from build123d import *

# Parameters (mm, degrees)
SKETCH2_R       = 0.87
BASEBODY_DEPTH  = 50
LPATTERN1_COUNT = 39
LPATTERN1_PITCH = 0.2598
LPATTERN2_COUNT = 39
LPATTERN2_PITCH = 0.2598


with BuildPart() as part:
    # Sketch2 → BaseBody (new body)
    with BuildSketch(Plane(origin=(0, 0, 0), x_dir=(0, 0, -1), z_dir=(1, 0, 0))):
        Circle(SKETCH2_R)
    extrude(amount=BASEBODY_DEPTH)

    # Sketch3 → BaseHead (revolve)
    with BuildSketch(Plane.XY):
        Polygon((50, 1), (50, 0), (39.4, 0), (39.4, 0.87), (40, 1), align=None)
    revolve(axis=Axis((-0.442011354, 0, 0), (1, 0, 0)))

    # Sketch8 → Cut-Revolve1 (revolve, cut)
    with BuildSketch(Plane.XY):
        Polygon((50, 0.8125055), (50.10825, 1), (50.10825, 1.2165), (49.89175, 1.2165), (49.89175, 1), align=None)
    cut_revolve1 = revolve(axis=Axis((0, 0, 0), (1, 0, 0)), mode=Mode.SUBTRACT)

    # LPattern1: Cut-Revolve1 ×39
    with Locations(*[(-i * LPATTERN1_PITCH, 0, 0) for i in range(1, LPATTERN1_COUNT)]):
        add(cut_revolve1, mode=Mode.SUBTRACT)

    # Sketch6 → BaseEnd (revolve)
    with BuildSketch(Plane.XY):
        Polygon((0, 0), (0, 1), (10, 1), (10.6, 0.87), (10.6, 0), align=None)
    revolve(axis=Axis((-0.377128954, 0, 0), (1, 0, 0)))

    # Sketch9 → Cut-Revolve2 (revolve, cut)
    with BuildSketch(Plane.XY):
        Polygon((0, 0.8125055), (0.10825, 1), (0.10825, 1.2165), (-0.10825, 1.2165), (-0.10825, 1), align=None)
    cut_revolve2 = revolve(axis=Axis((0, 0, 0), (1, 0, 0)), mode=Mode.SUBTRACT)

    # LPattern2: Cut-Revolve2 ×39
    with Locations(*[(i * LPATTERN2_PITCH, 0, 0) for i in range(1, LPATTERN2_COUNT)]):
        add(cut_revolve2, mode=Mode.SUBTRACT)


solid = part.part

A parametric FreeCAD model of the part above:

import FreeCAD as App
import Part
import Sketcher
from FreeCAD import Vector
Q = App.Units.Quantity


def add_polygon(sketch, points):
    """Adds a closed chain of lines whose ends are joined by coincident constraints."""
    first, n = sketch.GeometryCount, len(points)
    for a, b in zip(points, points[1:] + points[:1]):
        sketch.addGeometry(Part.LineSegment(App.Vector(*a, 0), App.Vector(*b, 0)), False)
    for i in range(n):
        sketch.addConstraint(Sketcher.Constraint("Coincident", first + i, 2, first + (i + 1) % n, 1))

doc = App.newDocument("Part")
params = doc.addObject("Spreadsheet::Sheet", "Params")
for row, (alias, value) in enumerate([
    ("sketch1_diameter", "1.74 mm"),
    ("pad1_length", "50 mm"),
    ("sketch2_width", "10 mm"),
    ("sketch2_height", "1 mm"),
    ("sketch2_width2", "10.6 mm"),
    ("sketch2_height2", "0.87 mm"),
    ("revolution_angle", "360 deg"),
    ("groove_angle", "360 deg"),
    ("linearpattern_pitch", "0.2598 mm"),
    ("sketch4_width", "10 mm"),
    ("sketch4_height", "1 mm"),
    ("sketch4_width2", "10.6 mm"),
    ("sketch4_height2", "0.87 mm"),
    ("revolution2_angle", "360 deg"),
    ("groove2_angle", "360 deg"),
    ("linearpattern2_pitch", "0.2598 mm"),
], start=1):
    params.set(f"A{row}", alias)
    params.set(f"B{row}", "=" + value)
    params.setAlias(f"B{row}", alias)

body = doc.addObject("PartDesign::Body", "Body")

# Sketch on YZ plane
sketch1 = body.newObject("Sketcher::SketchObject", "Sketch")
sketch1.AttachmentSupport = (doc.getObject("YZ_Plane"), [""])
sketch1.MapMode = "FlatFace"
sketch1.addGeometry(Part.Circle(Vector(0, 0, 0), Vector(0, 0, 1), 0.87), False)
sketch1.addConstraint([
    Sketcher.Constraint("Coincident", 0, 3, -1, 1),
    Sketcher.Constraint("Diameter", 0, 1.74),
])
sketch1.setExpression("Constraints[1]", "Params.sketch1_diameter")
pad1 = body.newObject("PartDesign::Pad", "Pad")
pad1.Profile = sketch1
pad1.setExpression("Length", "Params.pad1_length")

# Sketch on XY plane
sketch2 = body.newObject("Sketcher::SketchObject", "Sketch001")
sketch2.AttachmentSupport = (doc.getObject("XY_Plane"), [""])
sketch2.MapMode = "FlatFace"
add_polygon(sketch2, [(50, 0), (50, 1), (40, 1), (39.4, 0.87), (39.4, 0)])  # lines 0-4
sketch2.addConstraint([
    Sketcher.Constraint("Vertical", 0),
    Sketcher.Constraint("Horizontal", 1),
    Sketcher.Constraint("Vertical", 3),
    Sketcher.Constraint("Horizontal", 4),
    Sketcher.Constraint("PointOnObject", 3, 2, -1),
    Sketcher.Constraint("DistanceX", 1, 2, 1, 1, 10.0),
    Sketcher.Constraint("DistanceY", 0, 1, 0, 2, 1.0),
    Sketcher.Constraint("DistanceX", 4, 1, 4, 2, 10.6),
    Sketcher.Constraint("DistanceX", -1, 1, 0, 2, 50.0),
    Sketcher.Constraint("DistanceY", 3, 2, 3, 1, 0.87),
])
sketch2.setExpression("Constraints[10]", "Params.sketch2_width")
sketch2.setExpression("Constraints[11]", "Params.sketch2_height")
sketch2.setExpression("Constraints[12]", "Params.sketch2_width2")
sketch2.setExpression("Constraints[14]", "Params.sketch2_height2")
revolution = body.newObject("PartDesign::Revolution", "Revolution")
revolution.Profile = sketch2
revolution.ReferenceAxis = (sketch2, ["H_Axis"])
revolution.setExpression("Angle", "Params.revolution_angle")

# Sketch on XY plane
sketch3 = body.newObject("Sketcher::SketchObject", "Sketch002")
sketch3.AttachmentSupport = (doc.getObject("XY_Plane"), [""])
sketch3.MapMode = "FlatFace"
add_polygon(sketch3, [(50, 0.812505), (50.10825, 1), (50.10825, 1.2165), (49.89175, 1.2165), (49.89175, 1)])  # lines 0-4
sketch3.addConstraint([
    Sketcher.Constraint("Vertical", 1),
    Sketcher.Constraint("Horizontal", 2),
    Sketcher.Constraint("Vertical", 3),
    Sketcher.Constraint("Horizontal", 0, 2, 3, 2),
    Sketcher.Constraint("Equal", 2, 1),
    Sketcher.Constraint("Equal", 0, 4),
    Sketcher.Constraint("Angle", 0, Q("60 deg")),
    Sketcher.Constraint("DistanceY", -1, 1, 0, 2, 1.0),
    Sketcher.Constraint("DistanceX", -1, 1, 4, 2, 50.0),
    Sketcher.Constraint("DistanceX", 2, 2, 2, 1, 0.2165),
])
groove = body.newObject("PartDesign::Groove", "Groove")
groove.Profile = sketch3
groove.ReferenceAxis = (sketch3, ["H_Axis"])
groove.setExpression("Angle", "Params.groove_angle")
doc.recompute()

linearpattern = body.newObject("PartDesign::LinearPattern", "LinearPattern")
linearpattern.Originals = [groove]
linearpattern.Direction = (doc.getObject("X_Axis"), [""])
linearpattern.Mode = "offset"
linearpattern.setExpression("Offset", "Params.linearpattern_pitch")
linearpattern.Occurrences = 39
linearpattern.Reversed = True
body.Tip = linearpattern

# Sketch on XY plane
sketch4 = body.newObject("Sketcher::SketchObject", "Sketch003")
sketch4.AttachmentSupport = (doc.getObject("XY_Plane"), [""])
sketch4.MapMode = "FlatFace"
add_polygon(sketch4, [(0, 1), (0, 0), (10.6, 0), (10.6, 0.87), (10, 1)])  # lines 0-4
sketch4.addConstraint([
    Sketcher.Constraint("Vertical", 0),
    Sketcher.Constraint("Horizontal", 1),
    Sketcher.Constraint("Vertical", 2),
    Sketcher.Constraint("Horizontal", 4),
    Sketcher.Constraint("Coincident", 0, 2, -1, 1),
    Sketcher.Constraint("DistanceX", 4, 2, 4, 1, 10.0),
    Sketcher.Constraint("DistanceY", 0, 2, 0, 1, 1.0),
    Sketcher.Constraint("DistanceX", 1, 1, 1, 2, 10.6),
    Sketcher.Constraint("DistanceY", 2, 1, 2, 2, 0.87),
])
sketch4.setExpression("Constraints[10]", "Params.sketch4_width")
sketch4.setExpression("Constraints[11]", "Params.sketch4_height")
sketch4.setExpression("Constraints[12]", "Params.sketch4_width2")
sketch4.setExpression("Constraints[13]", "Params.sketch4_height2")
revolution2 = body.newObject("PartDesign::Revolution", "Revolution001")
revolution2.Profile = sketch4
revolution2.ReferenceAxis = (sketch4, ["H_Axis"])
revolution2.setExpression("Angle", "Params.revolution2_angle")

# Sketch on XY plane
sketch5 = body.newObject("Sketcher::SketchObject", "Sketch004")
sketch5.AttachmentSupport = (doc.getObject("XY_Plane"), [""])
sketch5.MapMode = "FlatFace"
add_polygon(sketch5, [(0, 0.812505), (0.10825, 1), (0.10825, 1.2165), (-0.10825, 1.2165), (-0.10825, 1)])  # lines 0-4
sketch5.addConstraint([
    Sketcher.Constraint("Vertical", 1),
    Sketcher.Constraint("Horizontal", 2),
    Sketcher.Constraint("Vertical", 3),
    Sketcher.Constraint("Symmetric", 0, 2, 3, 2, -2),
    Sketcher.Constraint("PointOnObject", 4, 2, -2),
    Sketcher.Constraint("Equal", 2, 1),
    Sketcher.Constraint("Angle", 0, Q("60 deg")),
    Sketcher.Constraint("DistanceY", -1, 1, 0, 2, 1.0),
    Sketcher.Constraint("DistanceX", 2, 2, 2, 1, 0.2165),
])
groove2 = body.newObject("PartDesign::Groove", "Groove001")
groove2.Profile = sketch5
groove2.ReferenceAxis = (sketch5, ["H_Axis"])
groove2.setExpression("Angle", "Params.groove2_angle")
doc.recompute()

linearpattern2 = body.newObject("PartDesign::LinearPattern", "LinearPattern001")
linearpattern2.Originals = [groove2]
linearpattern2.Direction = (doc.getObject("X_Axis"), [""])
linearpattern2.Mode = "offset"
linearpattern2.setExpression("Offset", "Params.linearpattern2_pitch")
linearpattern2.Occurrences = 39
body.Tip = linearpattern2

doc.recompute()
